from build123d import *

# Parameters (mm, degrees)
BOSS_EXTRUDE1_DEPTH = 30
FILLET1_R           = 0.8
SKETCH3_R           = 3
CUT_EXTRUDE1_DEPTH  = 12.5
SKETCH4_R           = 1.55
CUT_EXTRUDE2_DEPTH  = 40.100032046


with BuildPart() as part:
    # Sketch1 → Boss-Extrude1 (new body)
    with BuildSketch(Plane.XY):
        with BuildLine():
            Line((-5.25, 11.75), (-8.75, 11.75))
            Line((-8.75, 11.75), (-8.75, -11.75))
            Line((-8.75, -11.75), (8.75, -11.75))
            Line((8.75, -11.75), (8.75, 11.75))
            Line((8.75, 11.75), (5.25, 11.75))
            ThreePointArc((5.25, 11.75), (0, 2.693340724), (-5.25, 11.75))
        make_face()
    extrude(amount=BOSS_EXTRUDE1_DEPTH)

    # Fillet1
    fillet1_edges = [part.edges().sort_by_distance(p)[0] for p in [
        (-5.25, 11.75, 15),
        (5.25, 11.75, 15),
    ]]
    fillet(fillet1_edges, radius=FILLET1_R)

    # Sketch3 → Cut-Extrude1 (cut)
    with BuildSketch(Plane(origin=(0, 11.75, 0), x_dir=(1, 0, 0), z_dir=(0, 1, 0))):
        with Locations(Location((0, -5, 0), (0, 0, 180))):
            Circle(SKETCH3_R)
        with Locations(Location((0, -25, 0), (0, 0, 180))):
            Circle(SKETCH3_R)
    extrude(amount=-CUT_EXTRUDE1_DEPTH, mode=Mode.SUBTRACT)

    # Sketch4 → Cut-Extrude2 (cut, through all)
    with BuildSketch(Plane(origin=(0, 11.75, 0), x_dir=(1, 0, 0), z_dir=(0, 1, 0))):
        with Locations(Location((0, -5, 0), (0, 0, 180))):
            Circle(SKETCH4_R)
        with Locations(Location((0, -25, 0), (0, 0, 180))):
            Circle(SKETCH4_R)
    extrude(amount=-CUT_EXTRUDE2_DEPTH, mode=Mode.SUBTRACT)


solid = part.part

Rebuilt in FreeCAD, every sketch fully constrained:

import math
import FreeCAD as App
import Part
import Sketcher
from FreeCAD import Vector
Q = App.Units.Quantity


def edges_at(feature, points):
    """Names of the edges that pass closest to the given points."""
    edges = feature.Shape.Edges
    near = lambda p: min(range(len(edges)), key=lambda i: edges[i].distToShape(Part.Vertex(*p))[0])
    return sorted({f"Edge{near(p) + 1}" for p in points})

doc = App.newDocument("Part")
body = doc.addObject("PartDesign::Body", "Body")

# Sketch on XY plane
sketch1 = body.newObject("Sketcher::SketchObject", "Sketch")
sketch1.AttachmentSupport = (doc.getObject("XY_Plane"), [""])
sketch1.MapMode = "FlatFace"
sketch1.addGeometry([
    Part.LineSegment(Vector(-5.25, 11.75, 0), Vector(-8.75, 11.75, 0)),  # 0
    Part.LineSegment(Vector(-8.75, 11.75, 0), Vector(-8.75, -11.75, 0)),  # 1
    Part.LineSegment(Vector(-8.75, -11.75, 0), Vector(8.75, -11.75, 0)),  # 2
    Part.LineSegment(Vector(8.75, -11.75, 0), Vector(8.75, 11.75, 0)),  # 3
    Part.LineSegment(Vector(8.75, 11.75, 0), Vector(5.25, 11.75, 0)),  # 4
    Part.ArcOfCircle(Part.Circle(Vector(0, 8.743341, 0), Vector(0, 0, 1), 6.05), math.radians(150.200362), math.radians(389.799638)),  # 5
], False)
sketch1.addConstraint([
    Sketcher.Constraint("Coincident", 0, 2, 1, 1),
    Sketcher.Constraint("Coincident", 1, 2, 2, 1),
    Sketcher.Constraint("Coincident", 2, 2, 3, 1),
    Sketcher.Constraint("Coincident", 3, 2, 4, 1),
    Sketcher.Constraint("Coincident", 4, 2, 5, 2),
    Sketcher.Constraint("Coincident", 5, 1, 0, 1),
    Sketcher.Constraint("Horizontal", 0),
    Sketcher.Constraint("Vertical", 1),
    Sketcher.Constraint("Horizontal", 2),
    Sketcher.Constraint("Vertical", 3),
    Sketcher.Constraint("Horizontal", 4),
    Sketcher.Constraint("Symmetric", 0, 2, 2, 2, -1, 1),
    Sketcher.Constraint("Symmetric", 4, 2, 5, 1, -2),
    Sketcher.Constraint("Radius", 5, Q("6.05 mm")),
    Sketcher.Constraint("DistanceX", 0, 2, 0, 1, Q("3.5 mm")),
    Sketcher.Constraint("DistanceX", 2, 1, 2, 2, Q("17.5 mm")),
    Sketcher.Constraint("DistanceY", 1, 2, 1, 1, Q("23.5 mm")),
])
pad1 = body.newObject("PartDesign::Pad", "Pad")
pad1.Profile = sketch1
pad1.Length = 30
doc.recompute()

fillet = body.newObject("PartDesign::Fillet", "Fillet")
fillet.Base = (pad1, edges_at(pad1, [(-5.25, 11.75, 15), (5.25, 11.75, 15)]))
fillet.Radius = 0.8

# Sketch on XZ plane
sketch2 = body.newObject("Sketcher::SketchObject", "Sketch001")
sketch2.AttachmentSupport = (doc.getObject("XZ_Plane"), [""])
sketch2.MapMode = "FlatFace"
sketch2.AttachmentOffset = App.Placement(Vector(0, 0, -11.75), App.Rotation())
sketch2.addGeometry([
    Part.Circle(Vector(0, 5, 0), Vector(0, 0, 1), 3),
    Part.Circle(Vector(0, 25, 0), Vector(0, 0, 1), 3),
], False)
sketch2.addConstraint([
    Sketcher.Constraint("Equal", 0, 1),
    Sketcher.Constraint("PointOnObject", 0, 3, -2),
    Sketcher.Constraint("PointOnObject", 1, 3, -2),
    Sketcher.Constraint("Diameter", 0, Q("6 mm")),
    Sketcher.Constraint("DistanceY", -1, 1, 0, 3, Q("5 mm")),
    Sketcher.Constraint("DistanceY", -1, 1, 1, 3, Q("25 mm")),
])
pocket1 = body.newObject("PartDesign::Pocket", "Pocket")
pocket1.Profile = sketch2
pocket1.Length = 12.5
pocket1.Reversed = True

# Sketch on XZ plane
sketch3 = body.newObject("Sketcher::SketchObject", "Sketch002")
sketch3.AttachmentSupport = (doc.getObject("XZ_Plane"), [""])
sketch3.MapMode = "FlatFace"
sketch3.AttachmentOffset = App.Placement(Vector(0, 0, -11.75), App.Rotation())
sketch3.addGeometry([
    Part.Circle(Vector(0, 5, 0), Vector(0, 0, 1), 1.55),
    Part.Circle(Vector(0, 25, 0), Vector(0, 0, 1), 1.55),
], False)
sketch3.addConstraint([
    Sketcher.Constraint("Equal", 0, 1),
    Sketcher.Constraint("PointOnObject", 0, 3, -2),
    Sketcher.Constraint("PointOnObject", 1, 3, -2),
    Sketcher.Constraint("Diameter", 0, Q("3.1 mm")),
    Sketcher.Constraint("DistanceY", -1, 1, 0, 3, Q("5 mm")),
    Sketcher.Constraint("DistanceY", -1, 1, 1, 3, Q("25 mm")),
])
pocket2 = body.newObject("PartDesign::Pocket", "Pocket001")
pocket2.Profile = sketch3
pocket2.Type = "ThroughAll"
pocket2.Reversed = True

doc.recompute()
